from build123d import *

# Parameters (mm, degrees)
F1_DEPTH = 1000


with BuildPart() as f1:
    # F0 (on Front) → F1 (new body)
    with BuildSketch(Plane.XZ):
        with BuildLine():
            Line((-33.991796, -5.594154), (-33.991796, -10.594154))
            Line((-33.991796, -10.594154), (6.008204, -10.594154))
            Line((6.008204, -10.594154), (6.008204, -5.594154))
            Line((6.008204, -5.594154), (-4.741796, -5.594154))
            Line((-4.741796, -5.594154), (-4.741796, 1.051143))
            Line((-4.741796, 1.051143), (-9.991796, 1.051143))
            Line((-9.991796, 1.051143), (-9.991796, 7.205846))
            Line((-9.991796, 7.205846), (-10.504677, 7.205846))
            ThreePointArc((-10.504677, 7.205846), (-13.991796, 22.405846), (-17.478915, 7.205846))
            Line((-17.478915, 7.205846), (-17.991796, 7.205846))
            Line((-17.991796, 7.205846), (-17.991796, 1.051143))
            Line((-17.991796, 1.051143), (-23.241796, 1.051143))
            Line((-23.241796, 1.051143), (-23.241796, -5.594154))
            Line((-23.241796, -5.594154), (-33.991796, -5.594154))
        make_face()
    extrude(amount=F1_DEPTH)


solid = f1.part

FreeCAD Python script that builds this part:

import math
import FreeCAD as App
import Part
import Sketcher
Q = App.Units.Quantity

doc = App.newDocument("Part")
params = doc.addObject("Spreadsheet::Sheet", "Params")
for row, (alias, value) in enumerate([
    ("sketch1_radius", "8 mm"),
    ("sketch1_width", "40 mm"),
    ("sketch1_height", "5 mm"),
    ("sketch1_width2", "10.75 mm"),
    ("pad1_length", "1000 mm"),
], start=1):
    params.set(f"A{row}", alias)
    params.set(f"B{row}", "=" + value)
    params.setAlias(f"B{row}", alias)

body = doc.addObject("PartDesign::Body", "Body")

sketch1 = doc.addObject("Sketcher::SketchObject", "Sketch")
body.addObject(sketch1)
sketch1.AttachmentSupport = (doc.XZ_Plane, [""])
sketch1.MapMode = "FlatFace"
sketch1.addGeometry([
    Part.LineSegment(App.Vector(-34, -5.6, 0), App.Vector(-34, -10.6, 0)),
    Part.LineSegment(App.Vector(-34, -10.6, 0), App.Vector(6, -10.6, 0)),
    Part.LineSegment(App.Vector(6, -10.6, 0), App.Vector(6, -5.6, 0)),
    Part.LineSegment(App.Vector(6, -5.6, 0), App.Vector(-4.7, -5.6, 0)),
    Part.LineSegment(App.Vector(-4.7, -5.6, 0), App.Vector(-4.7, 1.1, 0)),
    Part.LineSegment(App.Vector(-4.7, 1.1, 0), App.Vector(-10, 1.1, 0)),
    Part.LineSegment(App.Vector(-10, 1.1, 0), App.Vector(-10, 7.2, 0)),
    Part.LineSegment(App.Vector(-10, 7.2, 0), App.Vector(-10.5, 7.2, 0)),
    Part.ArcOfCircle(Part.Circle(App.Vector(-14, 14.4, 0), App.Vector(0, 0, 1), 8), math.radians(-64), math.radians(244)),
    Part.LineSegment(App.Vector(-17.5, 7.2, 0), App.Vector(-18, 7.2, 0)),
    Part.LineSegment(App.Vector(-18, 7.2, 0), App.Vector(-18, 1.1, 0)),
    Part.LineSegment(App.Vector(-18, 1.1, 0), App.Vector(-23.2, 1.1, 0)),
    Part.LineSegment(App.Vector(-23.2, 1.1, 0), App.Vector(-23.2, -5.6, 0)),
    Part.LineSegment(App.Vector(-23.2, -5.6, 0), App.Vector(-34, -5.6, 0)),
], False)
sketch1.addConstraint([
    Sketcher.Constraint("Coincident", 0, 2, 1, 1),
    Sketcher.Constraint("Coincident", 1, 2, 2, 1),
    Sketcher.Constraint("Coincident", 2, 2, 3, 1),
    Sketcher.Constraint("Coincident", 3, 2, 4, 1),
    Sketcher.Constraint("Coincident", 4, 2, 5, 1),
    Sketcher.Constraint("Coincident", 5, 2, 6, 1),
    Sketcher.Constraint("Coincident", 6, 2, 7, 1),
    Sketcher.Constraint("Coincident", 7, 2, 8, 1),
    Sketcher.Constraint("Coincident", 8, 2, 9, 1),
    Sketcher.Constraint("Coincident", 9, 2, 10, 1),
    Sketcher.Constraint("Coincident", 10, 2, 11, 1),
    Sketcher.Constraint("Coincident", 11, 2, 12, 1),
    Sketcher.Constraint("Coincident", 12, 2, 13, 1),
    Sketcher.Constraint("Coincident", 13, 2, 0, 1),
    Sketcher.Constraint("Vertical", 0),
    Sketcher.Constraint("Horizontal", 1),
    Sketcher.Constraint("Vertical", 2),
    Sketcher.Constraint("Horizontal", 3),
    Sketcher.Constraint("Vertical", 4),
    Sketcher.Constraint("Horizontal", 5),
    Sketcher.Constraint("Vertical", 6),
    Sketcher.Constraint("Horizontal", 7),
    Sketcher.Constraint("Horizontal", 9),
    Sketcher.Constraint("Vertical", 10),
    Sketcher.Constraint("Horizontal", 11),
    Sketcher.Constraint("Vertical", 12),
    Sketcher.Constraint("Horizontal", 13),
    Sketcher.Constraint("Horizontal", 7, 2, 8, 2),
    Sketcher.Constraint("Horizontal", 5, 2, 10, 2),
    Sketcher.Constraint("Horizontal", 3, 2, 12, 2),
    Sketcher.Constraint("Equal", 7, 9),
    Sketcher.Constraint("Equal", 5, 11),
    Sketcher.Constraint("Equal", 3, 13),
    Sketcher.Constraint("Radius", 8, Q("8 mm")),
    Sketcher.Constraint("DistanceX", 1, 1, 1, 2, Q("40 mm")),
    Sketcher.Constraint("DistanceY", 0, 2, 0, 1, Q("5 mm")),
    Sketcher.Constraint("DistanceY", 0, 2, 8, 3, Q("25 mm")),
    Sketcher.Constraint("DistanceX", 8, 3, 5, 2, Q("4 mm")),
    Sketcher.Constraint("DistanceX", 3, 2, 3, 1, Q("10.75 mm")),
    Sketcher.Constraint("DistanceY", 6, 2, 8, 3, Q("7.2 mm")),
    Sketcher.Constraint("DistanceY", 4, 1, 4, 2, Q("6.645297 mm")),
    Sketcher.Constraint("DistanceX", 8, 3, -1, 1, Q("13.991796 mm")),
    Sketcher.Constraint("DistanceY", -1, 1, 8, 3, Q("14.405846 mm")),
])
sketch1.setExpression("Constraints[33]", "Params.sketch1_radius")
sketch1.setExpression("Constraints[34]", "Params.sketch1_width")
sketch1.setExpression("Constraints[35]", "Params.sketch1_height")
sketch1.setExpression("Constraints[38]", "Params.sketch1_width2")
pad1 = doc.addObject("PartDesign::Pad", "Pad")
body.addObject(pad1)
pad1.Profile = sketch1
pad1.setExpression("Length", "Params.pad1_length")

doc.recompute()
